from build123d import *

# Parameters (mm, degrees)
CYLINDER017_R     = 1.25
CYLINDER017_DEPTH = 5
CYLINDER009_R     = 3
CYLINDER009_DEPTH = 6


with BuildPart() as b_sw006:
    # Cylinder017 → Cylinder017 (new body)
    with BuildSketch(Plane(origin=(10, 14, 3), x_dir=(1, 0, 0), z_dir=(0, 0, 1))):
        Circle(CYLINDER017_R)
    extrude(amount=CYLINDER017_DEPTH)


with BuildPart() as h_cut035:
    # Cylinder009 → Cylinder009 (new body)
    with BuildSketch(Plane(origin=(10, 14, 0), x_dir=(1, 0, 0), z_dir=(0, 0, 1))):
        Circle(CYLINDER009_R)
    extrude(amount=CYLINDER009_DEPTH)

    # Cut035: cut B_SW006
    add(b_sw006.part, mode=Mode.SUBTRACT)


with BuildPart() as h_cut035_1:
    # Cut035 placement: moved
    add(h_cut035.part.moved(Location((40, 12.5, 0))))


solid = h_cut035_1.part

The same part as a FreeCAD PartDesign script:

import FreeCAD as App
import Part
import Sketcher
from FreeCAD import Vector

doc = App.newDocument("Part")
body = doc.addObject("PartDesign::Body", "Body")

# Sketch on XY plane
sketch1 = body.newObject("Sketcher::SketchObject", "Sketch")
sketch1.AttachmentSupport = (doc.getObject("XY_Plane"), [""])
sketch1.MapMode = "FlatFace"
sketch1.AttachmentOffset = App.Placement(Vector(0, 0, 3), App.Rotation())
sketch1.addGeometry(Part.Circle(Vector(10, 14, 0), Vector(0, 0, 1), 1.25), False)
sketch1.addConstraint(Sketcher.Constraint("Diameter", 0, 2.5))
sketch1.addConstraint(Sketcher.Constraint("DistanceX", -1, 1, 0, 3, 10.0))
sketch1.addConstraint(Sketcher.Constraint("DistanceY", -1, 1, 0, 3, 14.0))
pad1 = body.newObject("PartDesign::Pad", "Pad")
pad1.Profile = sketch1
pad1.Length = 5
body2 = doc.addObject("PartDesign::Body", "Body001")

# Sketch on XY plane
sketch2 = body2.newObject("Sketcher::SketchObject", "Sketch001")
sketch2.AttachmentSupport = (doc.getObject("XY_Plane001"), [""])
sketch2.MapMode = "FlatFace"
sketch2.addGeometry(Part.Circle(Vector(10, 14, 0), Vector(0, 0, 1), 3), False)
sketch2.addConstraint(Sketcher.Constraint("Diameter", 0, 6.0))
sketch2.addConstraint(Sketcher.Constraint("DistanceX", -1, 1, 0, 3, 10.0))
sketch2.addConstraint(Sketcher.Constraint("DistanceY", -1, 1, 0, 3, 14.0))
pad2 = body2.newObject("PartDesign::Pad", "Pad001")
pad2.Profile = sketch2
pad2.Length = 6
doc.recompute()

boolean = body2.newObject("PartDesign::Boolean", "Boolean")
boolean.Type = "Cut"
boolean.addObjects([body])
body3 = doc.addObject("PartDesign::Body", "Body002")
doc.recompute()

body2.Placement = App.Placement(Vector(40, 12.5, 0), App.Rotation(Vector(0, 0, 1), 0))
boolean2 = body3.newObject("PartDesign::Boolean", "Boolean001")
boolean2.Type = "Fuse"
boolean2.addObjects([body2])

doc.recompute()
